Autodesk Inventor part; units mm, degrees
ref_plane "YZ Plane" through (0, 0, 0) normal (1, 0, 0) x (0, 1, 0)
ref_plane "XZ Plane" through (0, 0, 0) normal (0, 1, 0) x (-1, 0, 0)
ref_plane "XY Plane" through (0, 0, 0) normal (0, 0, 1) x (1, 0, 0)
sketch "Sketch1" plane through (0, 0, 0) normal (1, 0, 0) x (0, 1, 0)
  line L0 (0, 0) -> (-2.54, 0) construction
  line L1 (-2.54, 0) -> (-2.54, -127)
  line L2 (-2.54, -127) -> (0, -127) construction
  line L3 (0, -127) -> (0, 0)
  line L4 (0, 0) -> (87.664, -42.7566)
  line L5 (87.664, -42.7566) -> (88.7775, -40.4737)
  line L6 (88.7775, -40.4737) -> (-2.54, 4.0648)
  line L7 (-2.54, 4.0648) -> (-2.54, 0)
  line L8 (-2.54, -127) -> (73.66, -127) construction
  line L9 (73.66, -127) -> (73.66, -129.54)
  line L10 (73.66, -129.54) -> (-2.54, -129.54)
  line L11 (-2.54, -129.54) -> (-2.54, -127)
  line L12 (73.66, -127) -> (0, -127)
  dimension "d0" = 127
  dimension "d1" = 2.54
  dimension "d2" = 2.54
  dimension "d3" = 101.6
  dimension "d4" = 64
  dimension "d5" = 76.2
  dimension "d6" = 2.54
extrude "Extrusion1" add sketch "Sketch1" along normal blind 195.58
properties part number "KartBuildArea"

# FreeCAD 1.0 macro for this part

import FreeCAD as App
import Part
import Sketcher
Q = App.Units.Quantity

doc = App.newDocument("Part")
body = doc.addObject("PartDesign::Body", "Body")

sketch1 = body.newObject("Sketcher::SketchObject", "Sketch")
sketch1.AttachmentSupport = (doc.getObject("YZ_Plane"), [""])
sketch1.MapMode = "FlatFace"
sketch1.addGeometry(Part.LineSegment(App.Vector(-2.54, 4.0648, 0), App.Vector(-2.54, -129.54, 0)), False)
sketch1.addGeometry(Part.LineSegment(App.Vector(-2.54, -129.54, 0), App.Vector(73.66, -129.54, 0)), False)
sketch1.addGeometry(Part.LineSegment(App.Vector(73.66, -129.54, 0), App.Vector(73.66, -127, 0)), False)
sketch1.addGeometry(Part.LineSegment(App.Vector(73.66, -127, 0), App.Vector(0, -127, 0)), False)
sketch1.addGeometry(Part.LineSegment(App.Vector(0, -127, 0), App.Vector(0, 0, 0)), False)
sketch1.addGeometry(Part.LineSegment(App.Vector(0, 0, 0), App.Vector(87.664, -42.7566, 0)), False)
sketch1.addGeometry(Part.LineSegment(App.Vector(87.664, -42.7566, 0), App.Vector(88.7775, -40.4737, 0)), False)
sketch1.addGeometry(Part.LineSegment(App.Vector(88.7775, -40.4737, 0), App.Vector(-2.54, 4.0648, 0)), False)
sketch1.addConstraint(Sketcher.Constraint("Coincident", 0, 2, 1, 1))
sketch1.addConstraint(Sketcher.Constraint("Coincident", 1, 2, 2, 1))
sketch1.addConstraint(Sketcher.Constraint("Coincident", 2, 2, 3, 1))
sketch1.addConstraint(Sketcher.Constraint("Coincident", 3, 2, 4, 1))
sketch1.addConstraint(Sketcher.Constraint("Coincident", 4, 2, 5, 1))
sketch1.addConstraint(Sketcher.Constraint("Coincident", 5, 2, 6, 1))
sketch1.addConstraint(Sketcher.Constraint("Coincident", 6, 2, 7, 1))
sketch1.addConstraint(Sketcher.Constraint("Coincident", 7, 2, 0, 1))
sketch1.addConstraint(Sketcher.Constraint("Vertical", 0))
sketch1.addConstraint(Sketcher.Constraint("Horizontal", 1))
sketch1.addConstraint(Sketcher.Constraint("Vertical", 2))
sketch1.addConstraint(Sketcher.Constraint("Horizontal", 3))
sketch1.addConstraint(Sketcher.Constraint("Vertical", 4))
sketch1.addConstraint(Sketcher.Constraint("Coincident", 4, 2, -1, 1))
sketch1.addConstraint(Sketcher.Constraint("Perpendicular", 5, 6))
sketch1.addConstraint(Sketcher.Constraint("Perpendicular", 6, 7))
sketch1.addConstraint(Sketcher.Constraint("DistanceX", 1, 1, 1, 2, Q("3 in")))
sketch1.addConstraint(Sketcher.Constraint("DistanceY", 4, 1, 4, 2, Q("5 in")))
sketch1.addConstraint(Sketcher.Constraint("Distance", 7, Q("4 in")))
sketch1.addConstraint(Sketcher.Constraint("DistanceY", 2, 1, 2, 2, Q("0.1 in")))
sketch1.addConstraint(Sketcher.Constraint("Distance", 6, Q("0.1 in")))
sketch1.addConstraint(Sketcher.Constraint("DistanceX", 0, 2, -1, 1, Q("0.1 in")))
sketch1.addConstraint(Sketcher.Constraint("Angle", 5, Q("-26 deg")))
pad1 = body.newObject("PartDesign::Pad", "Pad")
pad1.Profile = sketch1
pad1.Length = Q("7.7 in")

doc.recompute()
